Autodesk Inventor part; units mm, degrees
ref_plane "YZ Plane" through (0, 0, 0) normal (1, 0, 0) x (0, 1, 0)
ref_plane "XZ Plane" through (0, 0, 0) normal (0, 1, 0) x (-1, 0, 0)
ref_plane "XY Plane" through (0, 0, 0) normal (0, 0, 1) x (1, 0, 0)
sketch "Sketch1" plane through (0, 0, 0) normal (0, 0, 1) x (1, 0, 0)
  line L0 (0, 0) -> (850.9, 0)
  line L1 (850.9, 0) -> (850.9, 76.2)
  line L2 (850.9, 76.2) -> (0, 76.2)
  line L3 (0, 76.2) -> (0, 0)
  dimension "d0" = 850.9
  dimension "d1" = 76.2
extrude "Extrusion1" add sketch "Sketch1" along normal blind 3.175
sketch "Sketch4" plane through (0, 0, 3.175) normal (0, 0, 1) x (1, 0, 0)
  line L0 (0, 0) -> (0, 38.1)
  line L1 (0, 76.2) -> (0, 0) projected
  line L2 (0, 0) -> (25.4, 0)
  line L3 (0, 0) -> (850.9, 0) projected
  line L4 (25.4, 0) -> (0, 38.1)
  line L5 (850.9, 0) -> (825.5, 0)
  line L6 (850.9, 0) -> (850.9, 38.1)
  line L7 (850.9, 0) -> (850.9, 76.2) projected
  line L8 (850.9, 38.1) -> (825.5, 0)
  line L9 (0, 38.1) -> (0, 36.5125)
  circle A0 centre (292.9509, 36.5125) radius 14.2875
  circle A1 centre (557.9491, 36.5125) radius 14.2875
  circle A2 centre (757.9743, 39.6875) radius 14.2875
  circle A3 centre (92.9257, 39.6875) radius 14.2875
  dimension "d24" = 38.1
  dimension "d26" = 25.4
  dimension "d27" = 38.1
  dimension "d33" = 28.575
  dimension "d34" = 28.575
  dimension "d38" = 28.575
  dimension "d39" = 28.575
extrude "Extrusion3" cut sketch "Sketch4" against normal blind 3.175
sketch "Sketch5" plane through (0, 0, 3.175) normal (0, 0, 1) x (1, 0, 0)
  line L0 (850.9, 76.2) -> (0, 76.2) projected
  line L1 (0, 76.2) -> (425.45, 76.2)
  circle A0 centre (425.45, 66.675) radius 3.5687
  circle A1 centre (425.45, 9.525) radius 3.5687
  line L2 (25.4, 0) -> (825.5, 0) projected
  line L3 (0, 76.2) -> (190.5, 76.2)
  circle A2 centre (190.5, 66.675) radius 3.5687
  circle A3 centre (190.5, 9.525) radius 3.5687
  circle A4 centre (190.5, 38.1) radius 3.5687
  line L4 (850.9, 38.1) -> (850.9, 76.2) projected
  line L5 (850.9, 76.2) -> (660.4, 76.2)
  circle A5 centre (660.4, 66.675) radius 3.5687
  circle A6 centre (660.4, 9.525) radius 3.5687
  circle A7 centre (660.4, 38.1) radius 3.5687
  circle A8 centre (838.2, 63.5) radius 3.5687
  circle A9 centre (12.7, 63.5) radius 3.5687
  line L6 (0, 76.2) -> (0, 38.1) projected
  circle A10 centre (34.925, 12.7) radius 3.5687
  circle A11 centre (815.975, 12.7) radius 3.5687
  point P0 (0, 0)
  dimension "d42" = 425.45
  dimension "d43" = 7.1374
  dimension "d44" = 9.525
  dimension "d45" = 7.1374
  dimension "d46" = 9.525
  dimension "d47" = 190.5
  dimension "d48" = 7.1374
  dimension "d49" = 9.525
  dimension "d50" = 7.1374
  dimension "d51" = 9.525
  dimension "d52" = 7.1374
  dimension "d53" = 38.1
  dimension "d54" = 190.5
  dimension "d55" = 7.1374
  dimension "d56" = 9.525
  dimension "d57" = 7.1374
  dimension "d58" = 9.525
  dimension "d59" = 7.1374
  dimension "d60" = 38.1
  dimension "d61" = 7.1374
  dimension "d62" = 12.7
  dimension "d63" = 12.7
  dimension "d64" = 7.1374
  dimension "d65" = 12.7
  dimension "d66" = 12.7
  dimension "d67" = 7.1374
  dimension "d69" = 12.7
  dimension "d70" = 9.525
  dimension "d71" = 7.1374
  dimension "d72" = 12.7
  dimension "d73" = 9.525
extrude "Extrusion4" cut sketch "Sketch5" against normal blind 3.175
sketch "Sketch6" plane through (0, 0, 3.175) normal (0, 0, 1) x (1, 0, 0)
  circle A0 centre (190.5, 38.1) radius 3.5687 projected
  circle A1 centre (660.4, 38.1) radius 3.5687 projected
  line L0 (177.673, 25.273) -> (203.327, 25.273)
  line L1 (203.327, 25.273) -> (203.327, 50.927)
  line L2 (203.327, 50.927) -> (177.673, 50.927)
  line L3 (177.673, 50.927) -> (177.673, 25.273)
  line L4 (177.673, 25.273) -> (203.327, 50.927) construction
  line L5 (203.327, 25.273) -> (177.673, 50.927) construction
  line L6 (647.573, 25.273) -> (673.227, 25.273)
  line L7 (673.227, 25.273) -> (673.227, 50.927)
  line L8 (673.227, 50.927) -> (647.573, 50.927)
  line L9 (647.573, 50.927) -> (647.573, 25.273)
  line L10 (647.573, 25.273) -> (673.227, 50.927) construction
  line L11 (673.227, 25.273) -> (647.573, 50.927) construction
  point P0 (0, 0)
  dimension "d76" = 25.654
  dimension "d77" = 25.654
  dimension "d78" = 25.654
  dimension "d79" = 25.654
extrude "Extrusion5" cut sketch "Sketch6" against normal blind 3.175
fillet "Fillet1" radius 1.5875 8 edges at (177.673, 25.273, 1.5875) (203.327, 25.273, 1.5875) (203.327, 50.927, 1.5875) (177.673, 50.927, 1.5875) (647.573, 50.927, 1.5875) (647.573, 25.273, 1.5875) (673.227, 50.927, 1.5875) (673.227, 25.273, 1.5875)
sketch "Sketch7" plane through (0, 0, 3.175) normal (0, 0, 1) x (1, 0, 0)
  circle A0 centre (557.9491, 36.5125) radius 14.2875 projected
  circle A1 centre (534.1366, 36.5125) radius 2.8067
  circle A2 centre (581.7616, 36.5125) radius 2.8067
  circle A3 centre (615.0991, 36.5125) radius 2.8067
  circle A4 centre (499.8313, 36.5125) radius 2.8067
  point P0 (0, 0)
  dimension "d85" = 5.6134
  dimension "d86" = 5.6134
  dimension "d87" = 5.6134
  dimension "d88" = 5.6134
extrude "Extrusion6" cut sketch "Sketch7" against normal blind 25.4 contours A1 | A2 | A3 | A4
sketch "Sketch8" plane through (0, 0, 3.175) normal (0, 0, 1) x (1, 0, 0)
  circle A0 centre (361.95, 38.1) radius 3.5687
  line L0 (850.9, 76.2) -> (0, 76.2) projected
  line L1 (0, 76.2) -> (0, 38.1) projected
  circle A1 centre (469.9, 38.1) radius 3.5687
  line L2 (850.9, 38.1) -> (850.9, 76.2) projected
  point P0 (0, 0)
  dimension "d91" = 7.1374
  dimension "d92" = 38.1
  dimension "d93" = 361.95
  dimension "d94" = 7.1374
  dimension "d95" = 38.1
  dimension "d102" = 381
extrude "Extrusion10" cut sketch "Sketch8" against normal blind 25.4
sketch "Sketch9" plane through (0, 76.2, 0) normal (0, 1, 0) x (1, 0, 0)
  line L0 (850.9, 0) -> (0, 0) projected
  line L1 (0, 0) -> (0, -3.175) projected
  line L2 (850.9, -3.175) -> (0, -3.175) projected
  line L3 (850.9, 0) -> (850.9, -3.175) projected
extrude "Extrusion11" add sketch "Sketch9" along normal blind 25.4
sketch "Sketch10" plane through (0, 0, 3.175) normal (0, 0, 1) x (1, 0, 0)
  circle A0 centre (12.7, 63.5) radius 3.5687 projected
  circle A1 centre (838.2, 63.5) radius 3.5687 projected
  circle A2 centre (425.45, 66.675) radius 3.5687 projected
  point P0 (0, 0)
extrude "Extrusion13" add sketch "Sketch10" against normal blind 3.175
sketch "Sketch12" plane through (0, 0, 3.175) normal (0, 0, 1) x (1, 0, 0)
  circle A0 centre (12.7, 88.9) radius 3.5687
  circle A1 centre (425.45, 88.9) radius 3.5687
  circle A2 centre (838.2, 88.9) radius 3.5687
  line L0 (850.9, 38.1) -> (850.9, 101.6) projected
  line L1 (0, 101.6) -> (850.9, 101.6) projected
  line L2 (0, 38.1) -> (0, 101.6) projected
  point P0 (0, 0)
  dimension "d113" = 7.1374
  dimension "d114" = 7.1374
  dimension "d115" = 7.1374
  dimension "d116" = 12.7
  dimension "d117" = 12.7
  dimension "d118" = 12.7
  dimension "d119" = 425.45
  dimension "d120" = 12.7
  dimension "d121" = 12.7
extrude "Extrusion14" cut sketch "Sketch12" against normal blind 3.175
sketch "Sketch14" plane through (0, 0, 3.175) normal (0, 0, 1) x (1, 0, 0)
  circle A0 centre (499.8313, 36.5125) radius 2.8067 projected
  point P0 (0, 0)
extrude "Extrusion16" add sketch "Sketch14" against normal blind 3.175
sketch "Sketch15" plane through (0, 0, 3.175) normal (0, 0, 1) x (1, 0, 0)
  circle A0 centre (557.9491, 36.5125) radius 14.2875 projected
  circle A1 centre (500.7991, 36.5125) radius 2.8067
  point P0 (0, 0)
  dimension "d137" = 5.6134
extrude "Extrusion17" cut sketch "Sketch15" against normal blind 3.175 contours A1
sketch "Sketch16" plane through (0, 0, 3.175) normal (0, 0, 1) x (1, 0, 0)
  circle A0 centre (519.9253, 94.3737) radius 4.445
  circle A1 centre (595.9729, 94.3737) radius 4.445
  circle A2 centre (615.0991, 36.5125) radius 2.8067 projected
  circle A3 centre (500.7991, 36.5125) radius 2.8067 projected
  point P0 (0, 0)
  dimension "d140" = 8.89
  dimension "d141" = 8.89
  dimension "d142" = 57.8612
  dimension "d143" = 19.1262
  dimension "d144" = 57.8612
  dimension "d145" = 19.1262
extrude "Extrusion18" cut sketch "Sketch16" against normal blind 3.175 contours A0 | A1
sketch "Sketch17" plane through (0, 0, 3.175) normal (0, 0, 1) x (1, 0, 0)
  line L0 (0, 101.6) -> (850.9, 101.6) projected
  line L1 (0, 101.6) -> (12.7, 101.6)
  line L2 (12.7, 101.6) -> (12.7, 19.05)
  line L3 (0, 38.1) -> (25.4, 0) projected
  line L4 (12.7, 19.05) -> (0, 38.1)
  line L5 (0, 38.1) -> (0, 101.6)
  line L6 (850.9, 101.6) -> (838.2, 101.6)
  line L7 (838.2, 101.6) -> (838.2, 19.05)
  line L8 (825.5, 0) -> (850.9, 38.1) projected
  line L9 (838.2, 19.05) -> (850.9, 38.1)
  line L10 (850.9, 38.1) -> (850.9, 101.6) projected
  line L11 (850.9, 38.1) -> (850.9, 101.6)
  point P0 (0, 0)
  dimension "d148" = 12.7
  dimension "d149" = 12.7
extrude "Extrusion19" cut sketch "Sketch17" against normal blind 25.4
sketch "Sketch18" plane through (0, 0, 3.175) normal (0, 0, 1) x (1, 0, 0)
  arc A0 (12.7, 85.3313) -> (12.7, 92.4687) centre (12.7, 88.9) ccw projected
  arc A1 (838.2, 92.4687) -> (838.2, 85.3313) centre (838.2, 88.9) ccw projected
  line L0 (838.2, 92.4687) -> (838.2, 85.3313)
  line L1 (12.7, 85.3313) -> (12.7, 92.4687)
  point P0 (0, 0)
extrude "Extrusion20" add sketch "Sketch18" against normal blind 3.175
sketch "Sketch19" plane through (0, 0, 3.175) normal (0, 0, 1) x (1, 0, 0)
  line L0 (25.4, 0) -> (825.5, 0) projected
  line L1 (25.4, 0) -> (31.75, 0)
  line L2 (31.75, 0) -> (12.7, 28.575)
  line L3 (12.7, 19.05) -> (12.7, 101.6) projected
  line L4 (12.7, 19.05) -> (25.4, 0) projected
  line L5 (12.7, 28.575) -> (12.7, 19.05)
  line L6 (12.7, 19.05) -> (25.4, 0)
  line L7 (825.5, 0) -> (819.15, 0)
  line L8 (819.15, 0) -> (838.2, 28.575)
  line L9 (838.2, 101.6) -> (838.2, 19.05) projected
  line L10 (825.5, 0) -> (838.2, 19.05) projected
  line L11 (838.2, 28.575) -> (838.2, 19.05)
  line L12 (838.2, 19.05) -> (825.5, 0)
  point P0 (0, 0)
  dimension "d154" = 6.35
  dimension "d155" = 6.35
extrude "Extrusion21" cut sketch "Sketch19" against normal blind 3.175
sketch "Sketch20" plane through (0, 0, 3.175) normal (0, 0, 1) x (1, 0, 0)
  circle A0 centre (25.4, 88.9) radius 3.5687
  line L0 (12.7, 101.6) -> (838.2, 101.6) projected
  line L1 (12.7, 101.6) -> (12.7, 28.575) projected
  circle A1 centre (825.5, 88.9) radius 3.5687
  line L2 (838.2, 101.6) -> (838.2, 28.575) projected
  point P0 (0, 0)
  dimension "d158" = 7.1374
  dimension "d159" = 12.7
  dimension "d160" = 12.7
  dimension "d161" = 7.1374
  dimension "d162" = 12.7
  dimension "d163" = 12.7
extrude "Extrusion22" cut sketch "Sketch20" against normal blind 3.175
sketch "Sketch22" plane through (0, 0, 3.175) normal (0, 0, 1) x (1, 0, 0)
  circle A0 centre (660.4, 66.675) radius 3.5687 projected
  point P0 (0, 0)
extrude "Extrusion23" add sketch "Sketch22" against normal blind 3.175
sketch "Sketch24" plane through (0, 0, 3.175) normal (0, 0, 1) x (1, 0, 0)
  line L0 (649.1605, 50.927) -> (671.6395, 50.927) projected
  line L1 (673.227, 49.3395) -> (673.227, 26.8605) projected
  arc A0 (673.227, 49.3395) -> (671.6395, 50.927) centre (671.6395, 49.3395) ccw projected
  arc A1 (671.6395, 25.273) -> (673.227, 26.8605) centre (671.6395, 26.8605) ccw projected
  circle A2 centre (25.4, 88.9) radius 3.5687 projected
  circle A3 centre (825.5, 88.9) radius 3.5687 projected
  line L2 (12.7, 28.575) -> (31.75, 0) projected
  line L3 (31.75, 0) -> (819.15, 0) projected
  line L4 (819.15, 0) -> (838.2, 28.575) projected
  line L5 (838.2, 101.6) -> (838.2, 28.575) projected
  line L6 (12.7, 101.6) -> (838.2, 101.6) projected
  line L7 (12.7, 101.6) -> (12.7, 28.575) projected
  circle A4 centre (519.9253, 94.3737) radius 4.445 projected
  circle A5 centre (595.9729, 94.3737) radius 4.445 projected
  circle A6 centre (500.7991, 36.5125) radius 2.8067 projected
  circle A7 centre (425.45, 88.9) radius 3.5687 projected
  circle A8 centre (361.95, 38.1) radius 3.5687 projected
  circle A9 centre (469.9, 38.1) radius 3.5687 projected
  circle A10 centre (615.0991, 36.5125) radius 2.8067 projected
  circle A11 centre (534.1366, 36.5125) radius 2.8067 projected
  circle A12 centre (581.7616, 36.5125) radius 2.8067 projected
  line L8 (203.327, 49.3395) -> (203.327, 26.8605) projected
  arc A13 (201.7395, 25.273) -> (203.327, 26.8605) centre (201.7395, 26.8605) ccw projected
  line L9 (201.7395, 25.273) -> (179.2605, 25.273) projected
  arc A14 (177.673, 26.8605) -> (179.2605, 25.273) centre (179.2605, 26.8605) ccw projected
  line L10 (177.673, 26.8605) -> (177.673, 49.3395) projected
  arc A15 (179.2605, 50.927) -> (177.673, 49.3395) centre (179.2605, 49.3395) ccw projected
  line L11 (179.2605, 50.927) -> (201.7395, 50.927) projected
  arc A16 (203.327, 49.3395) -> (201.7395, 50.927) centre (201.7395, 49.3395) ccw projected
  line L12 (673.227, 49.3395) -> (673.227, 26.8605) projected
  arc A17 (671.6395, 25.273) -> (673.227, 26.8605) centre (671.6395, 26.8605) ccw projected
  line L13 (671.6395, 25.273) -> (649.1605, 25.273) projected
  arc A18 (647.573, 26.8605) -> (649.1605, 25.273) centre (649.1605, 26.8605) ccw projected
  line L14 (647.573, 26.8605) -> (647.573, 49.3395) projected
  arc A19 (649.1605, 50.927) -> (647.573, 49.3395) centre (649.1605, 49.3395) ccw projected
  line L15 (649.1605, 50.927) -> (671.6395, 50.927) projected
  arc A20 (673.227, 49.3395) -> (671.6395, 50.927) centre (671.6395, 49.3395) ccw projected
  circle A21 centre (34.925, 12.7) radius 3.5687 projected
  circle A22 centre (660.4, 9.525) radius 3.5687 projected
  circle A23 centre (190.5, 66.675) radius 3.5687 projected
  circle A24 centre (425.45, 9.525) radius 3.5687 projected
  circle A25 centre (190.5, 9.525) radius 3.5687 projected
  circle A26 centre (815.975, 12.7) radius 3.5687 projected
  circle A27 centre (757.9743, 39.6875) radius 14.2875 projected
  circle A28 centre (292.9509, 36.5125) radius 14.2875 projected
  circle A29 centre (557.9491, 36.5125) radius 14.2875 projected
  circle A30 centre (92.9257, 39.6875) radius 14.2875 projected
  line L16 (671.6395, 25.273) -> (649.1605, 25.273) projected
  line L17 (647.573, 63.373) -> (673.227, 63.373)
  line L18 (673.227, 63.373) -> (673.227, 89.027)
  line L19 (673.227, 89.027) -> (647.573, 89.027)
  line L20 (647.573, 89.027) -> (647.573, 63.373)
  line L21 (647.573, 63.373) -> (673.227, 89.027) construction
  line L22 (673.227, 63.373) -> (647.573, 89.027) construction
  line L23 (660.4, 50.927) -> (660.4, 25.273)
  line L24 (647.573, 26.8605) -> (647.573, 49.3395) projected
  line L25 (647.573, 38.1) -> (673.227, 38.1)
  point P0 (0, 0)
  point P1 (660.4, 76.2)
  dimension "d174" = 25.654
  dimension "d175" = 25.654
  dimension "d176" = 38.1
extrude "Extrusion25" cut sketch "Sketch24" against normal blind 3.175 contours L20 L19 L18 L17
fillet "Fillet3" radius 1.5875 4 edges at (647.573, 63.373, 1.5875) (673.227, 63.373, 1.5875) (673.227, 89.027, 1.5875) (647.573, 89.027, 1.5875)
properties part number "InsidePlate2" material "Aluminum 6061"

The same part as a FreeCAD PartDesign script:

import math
import FreeCAD as App
import Part
import Sketcher

V = App.Vector
Q = App.Units.Quantity


def edges_at(feature, points):
    """Names of the edges that pass closest to the given points."""
    edges = feature.Shape.Edges
    near = lambda p: min(range(len(edges)), key=lambda i: edges[i].distToShape(Part.Vertex(*p))[0])
    return sorted({f"Edge{near(p) + 1}" for p in points})


def add_polygon(sketch, points):
    """Adds a closed chain of lines whose ends are joined by coincident constraints."""
    first, n = sketch.GeometryCount, len(points)
    for a, b in zip(points, points[1:] + points[:1]):
        sketch.addGeometry(Part.LineSegment(App.Vector(*a, 0), App.Vector(*b, 0)), False)
    for i in range(n):
        sketch.addConstraint(Sketcher.Constraint("Coincident", first + i, 2, first + (i + 1) % n, 1))

doc = App.newDocument("Part")
body = doc.addObject("PartDesign::Body", "Body")

# Sketch on XY plane
sketch1 = body.newObject("Sketcher::SketchObject", "Sketch")
sketch1.AttachmentSupport = (doc.getObject("XY_Plane"), [""])
sketch1.MapMode = "FlatFace"
add_polygon(sketch1, [(0, 76), (0, 0), (851, 0), (851, 76)])  # lines 0-3
sketch1.addConstraint([
    Sketcher.Constraint("Vertical", 0),
    Sketcher.Constraint("Horizontal", 1),
    Sketcher.Constraint("Vertical", 2),
    Sketcher.Constraint("Horizontal", 3),
    Sketcher.Constraint("Coincident", 0, 2, -1, 1),
    Sketcher.Constraint("DistanceY", 0, 2, 0, 1, Q("3 in")),
    Sketcher.Constraint("DistanceX", 1, 1, 1, 2, Q("33.5 in")),
])
pad1 = body.newObject("PartDesign::Pad", "Pad")
pad1.Profile = sketch1
pad1.Length = Q("0.125 in")

# Sketch on XY plane
sketch2 = body.newObject("Sketcher::SketchObject", "Sketch001")
sketch2.AttachmentSupport = (doc.getObject("XY_Plane"), [""])
sketch2.MapMode = "FlatFace"
sketch2.AttachmentOffset = App.Placement(V(0, 0, 0.125 * 25.4), App.Rotation())
add_polygon(sketch2, [(851, 38), (826, 0), (851, 0)])  # lines 0-2
add_polygon(sketch2, [(0, 38), (0, 0), (25, 0)])  # lines 3-5
sketch2.addGeometry(Part.Circle(V(293, 37, 0), V(0, 0, 1), 14), False)  # 6
sketch2.addGeometry(Part.Circle(V(558, 37, 0), V(0, 0, 1), 14), False)  # 7
sketch2.addGeometry(Part.Circle(V(758, 40, 0), V(0, 0, 1), 14), False)  # 8
sketch2.addGeometry(Part.Circle(V(93, 40, 0), V(0, 0, 1), 14), False)  # 9
sketch2.addConstraint([
    Sketcher.Constraint("Horizontal", 1),
    Sketcher.Constraint("Vertical", 2),
    Sketcher.Constraint("Vertical", 3),
    Sketcher.Constraint("Horizontal", 4),
    Sketcher.Constraint("Coincident", 3, 2, -1, 1),
    Sketcher.Constraint("Equal", 6, 7),
    Sketcher.Constraint("Equal", 7, 8),
    Sketcher.Constraint("Equal", 8, 9),
    Sketcher.Constraint("PointOnObject", 0, 2, -1),
    Sketcher.Constraint("Horizontal", 6, 3, 7, 3),
    Sketcher.Constraint("Horizontal", 8, 3, 9, 3),
    Sketcher.Constraint("Horizontal", 2, 2, 5, 2),
    Sketcher.Constraint("Equal", 1, 4),
    Sketcher.Constraint("DistanceX", 1, 1, 1, 2, Q("1 in")),
    Sketcher.Constraint("Diameter", 6, Q("1.125 in")),
    Sketcher.Constraint("DistanceY", 2, 1, 2, 2, Q("1.5 in")),
    Sketcher.Constraint("DistanceX", -1, 1, 0, 2, Q("32.5 in")),
    Sketcher.Constraint("DistanceY", -1, 1, 6, 3, Q("1.4375 in")),
    Sketcher.Constraint("DistanceY", -1, 1, 8, 3, Q("1.5625 in")),
    Sketcher.Constraint("DistanceX", 6, 3, 7, 3, Q("10.433 in")),
    Sketcher.Constraint("DistanceX", 7, 3, 8, 3, Q("7.875 in")),
    Sketcher.Constraint("DistanceX", 9, 3, 6, 3, Q("7.875 in")),
    Sketcher.Constraint("DistanceX", -1, 1, 6, 3, Q("11.5335 in")),
])
pocket1 = body.newObject("PartDesign::Pocket", "Pocket")
pocket1.Profile = sketch2
pocket1.Length = Q("0.125 in")

# Sketch on XY plane
sketch3 = body.newObject("Sketcher::SketchObject", "Sketch002")
sketch3.AttachmentSupport = (doc.getObject("XY_Plane"), [""])
sketch3.MapMode = "FlatFace"
sketch3.AttachmentOffset = App.Placement(V(0, 0, 0.125 * 25.4), App.Rotation())
sketch3.addGeometry([
    Part.Circle(V(425.4, 66.7, 0), V(0, 0, 1), 3.6),  # 0
    Part.Circle(V(425.4, 9.5, 0), V(0, 0, 1), 3.6),  # 1
    Part.Circle(V(190.5, 66.7, 0), V(0, 0, 1), 3.6),  # 2
    Part.Circle(V(190.5, 9.5, 0), V(0, 0, 1), 3.6),  # 3
    Part.Circle(V(190.5, 38.1, 0), V(0, 0, 1), 3.6),  # 4
    Part.Circle(V(660.4, 66.7, 0), V(0, 0, 1), 3.6),  # 5
    Part.Circle(V(660.4, 9.5, 0), V(0, 0, 1), 3.6),  # 6
    Part.Circle(V(660.4, 38.1, 0), V(0, 0, 1), 3.6),  # 7
    Part.Circle(V(838.2, 63.5, 0), V(0, 0, 1), 3.6),  # 8
    Part.Circle(V(12.7, 63.5, 0), V(0, 0, 1), 3.6),  # 9
    Part.Circle(V(34.9, 12.7, 0), V(0, 0, 1), 3.6),  # 10
    Part.Circle(V(816, 12.7, 0), V(0, 0, 1), 3.6),  # 11
], False)
sketch3.addConstraint([
    Sketcher.Constraint("Equal", 0, 1),
    Sketcher.Constraint("Equal", 1, 2),
    Sketcher.Constraint("Equal", 2, 3),
    Sketcher.Constraint("Equal", 3, 4),
    Sketcher.Constraint("Equal", 4, 5),
    Sketcher.Constraint("Equal", 5, 6),
    Sketcher.Constraint("Equal", 6, 7),
    Sketcher.Constraint("Equal", 7, 8),
    Sketcher.Constraint("Equal", 8, 9),
    Sketcher.Constraint("Equal", 9, 10),
    Sketcher.Constraint("Equal", 10, 11),
    Sketcher.Constraint("Horizontal", 0, 3, 2, 3),
    Sketcher.Constraint("Horizontal", 1, 3, 3, 3),
    Sketcher.Constraint("Horizontal", 2, 3, 5, 3),
    Sketcher.Constraint("Horizontal", 3, 3, 6, 3),
    Sketcher.Constraint("Horizontal", 4, 3, 7, 3),
    Sketcher.Constraint("Horizontal", 8, 3, 9, 3),
    Sketcher.Constraint("Horizontal", 10, 3, 11, 3),
    Sketcher.Constraint("Vertical", 0, 3, 1, 3),
    Sketcher.Constraint("Vertical", 2, 3, 3, 3),
    Sketcher.Constraint("Vertical", 3, 3, 4, 3),
    Sketcher.Constraint("Vertical", 5, 3, 6, 3),
    Sketcher.Constraint("Vertical", 6, 3, 7, 3),
    Sketcher.Constraint("Diameter", 0, Q("0.281 in")),
    Sketcher.Constraint("DistanceX", -1, 1, 2, 3, Q("7.5 in")),
    Sketcher.Constraint("DistanceY", -1, 1, 4, 3, Q("1.5 in")),
    Sketcher.Constraint("DistanceX", -1, 1, 9, 3, Q("0.5 in")),
    Sketcher.Constraint("DistanceY", -1, 1, 10, 3, Q("0.5 in")),
    Sketcher.Constraint("DistanceX", -1, 1, 0, 3, Q("16.75 in")),
    Sketcher.Constraint("DistanceY", -1, 1, 1, 3, Q("0.375 in")),
    Sketcher.Constraint("DistanceX", -1, 1, 5, 3, Q("26 in")),
    Sketcher.Constraint("DistanceX", -1, 1, 8, 3, Q("33 in")),
    Sketcher.Constraint("DistanceY", 7, 3, 8, 3, Q("1 in")),
    Sketcher.Constraint("DistanceY", 1, 3, 0, 3, Q("2.25 in")),
    Sketcher.Constraint("DistanceX", -1, 1, 10, 3, Q("1.375 in")),
    Sketcher.Constraint("DistanceX", -1, 1, 11, 3, Q("32.125 in")),
])
pocket2 = body.newObject("PartDesign::Pocket", "Pocket001")
pocket2.Profile = sketch3
pocket2.Length = Q("0.125 in")

# Sketch on XY plane
sketch4 = body.newObject("Sketcher::SketchObject", "Sketch003")
sketch4.AttachmentSupport = (doc.getObject("XY_Plane"), [""])
sketch4.MapMode = "FlatFace"
sketch4.AttachmentOffset = App.Placement(V(0, 0, 0.125 * 25.4), App.Rotation())
add_polygon(sketch4, [(177.7, 50.9), (177.7, 25.3), (203.3, 25.3), (203.3, 50.9)])  # lines 0-3
sketch4.addGeometry(Part.Circle(V(190.5, 38.1, 0), V(0, 0, 1), 3.6), False)  # 4
add_polygon(sketch4, [(647.6, 50.9), (647.6, 25.3), (673.2, 25.3), (673.2, 50.9)])  # lines 5-8
sketch4.addGeometry(Part.Circle(V(660.4, 38.1, 0), V(0, 0, 1), 3.6), False)  # 9
sketch4.addConstraint([
    Sketcher.Constraint("Vertical", 0),
    Sketcher.Constraint("Horizontal", 1),
    Sketcher.Constraint("Vertical", 2),
    Sketcher.Constraint("Horizontal", 3),
    Sketcher.Constraint("Vertical", 5),
    Sketcher.Constraint("Horizontal", 6),
    Sketcher.Constraint("Vertical", 7),
    Sketcher.Constraint("Horizontal", 8),
    Sketcher.Constraint("Equal", 4, 9),
    Sketcher.Constraint("Horizontal", 4, 3, 9, 3),
    Sketcher.Constraint("Horizontal", 1, 2, 5, 2),
    Sketcher.Constraint("Horizontal", 3, 2, 7, 2),
    Sketcher.Constraint("Equal", 3, 6),
    Sketcher.Constraint("Equal", 8, 0),
    Sketcher.Constraint("DistanceX", 1, 1, 1, 2, Q("1.01 in")),
    Sketcher.Constraint("Diameter", 4, Q("0.281 in")),
    Sketcher.Constraint("DistanceX", -1, 1, 9, 3, Q("26 in")),
    Sketcher.Constraint("DistanceX", -1, 1, 4, 3, Q("7.5 in")),
    Sketcher.Constraint("DistanceY", -1, 1, 4, 3, Q("1.5 in")),
    Sketcher.Constraint("DistanceX", 0, 2, 5, 2, Q("18.5 in")),
    Sketcher.Constraint("DistanceX", -1, 1, 0, 2, Q("6.995 in")),
    Sketcher.Constraint("DistanceY", -1, 1, 0, 2, Q("0.995 in")),
])
pocket3 = body.newObject("PartDesign::Pocket", "Pocket002")
pocket3.Profile = sketch4
pocket3.Length = Q("0.125 in")
doc.recompute()

fillet = body.newObject("PartDesign::Fillet", "Fillet")
fillet.Base = (pocket3, edges_at(pocket3, [
    (177.673, 25.273, 1.587),
    (203.327, 25.273, 1.587),
    (203.327, 50.927, 1.587),
    (177.673, 50.927, 1.587),
    (647.573, 50.927, 1.587),
    (647.573, 25.273, 1.587),
    (673.227, 50.927, 1.587),
    (673.227, 25.273, 1.587),
]))
fillet.Radius = Q("0.0625 in")

# Sketch on XY plane
sketch5 = body.newObject("Sketcher::SketchObject", "Sketch004")
sketch5.AttachmentSupport = (doc.getObject("XY_Plane"), [""])
sketch5.MapMode = "FlatFace"
sketch5.AttachmentOffset = App.Placement(V(0, 0, 0.125 * 25.4), App.Rotation())
sketch5.addGeometry([
    Part.Circle(V(534.1, 36.5, 0), V(0, 0, 1), 2.8),
    Part.Circle(V(581.8, 36.5, 0), V(0, 0, 1), 2.8),
    Part.Circle(V(615.1, 36.5, 0), V(0, 0, 1), 2.8),
    Part.Circle(V(499.8, 36.5, 0), V(0, 0, 1), 2.8),
], False)
sketch5.addConstraint([
    Sketcher.Constraint("Equal", 0, 1),
    Sketcher.Constraint("Equal", 1, 2),
    Sketcher.Constraint("Equal", 2, 3),
    Sketcher.Constraint("Horizontal", 0, 3, 1, 3),
    Sketcher.Constraint("Horizontal", 1, 3, 2, 3),
    Sketcher.Constraint("Horizontal", 2, 3, 3, 3),
    Sketcher.Constraint("Diameter", 0, Q("0.221 in")),
    Sketcher.Constraint("DistanceX", -1, 1, 0, 3, Q("21.029 in")),
    Sketcher.Constraint("DistanceY", -1, 1, 0, 3, Q("1.4375 in")),
    Sketcher.Constraint("DistanceX", -1, 1, 1, 3, Q("22.904 in")),
    Sketcher.Constraint("DistanceX", 1, 3, 2, 3, Q("1.3125 in")),
    Sketcher.Constraint("DistanceX", -1, 1, 3, 3, Q("19.6784 in")),
])
pocket4 = body.newObject("PartDesign::Pocket", "Pocket003")
pocket4.Profile = sketch5
pocket4.Length = Q("1 in")

# Sketch on XY plane
sketch6 = body.newObject("Sketcher::SketchObject", "Sketch005")
sketch6.AttachmentSupport = (doc.getObject("XY_Plane"), [""])
sketch6.MapMode = "FlatFace"
sketch6.AttachmentOffset = App.Placement(V(0, 0, 0.125 * 25.4), App.Rotation())
sketch6.addGeometry([
    Part.Circle(V(361.9, 38.1, 0), V(0, 0, 1), 3.6),
    Part.Circle(V(469.9, 38.1, 0), V(0, 0, 1), 3.6),
], False)
sketch6.addConstraint([
    Sketcher.Constraint("Equal", 0, 1),
    Sketcher.Constraint("Horizontal", 0, 3, 1, 3),
    Sketcher.Constraint("Diameter", 0, Q("0.281 in")),
    Sketcher.Constraint("DistanceY", -1, 1, 0, 3, Q("1.5 in")),
    Sketcher.Constraint("DistanceX", -1, 1, 0, 3, Q("14.25 in")),
    Sketcher.Constraint("DistanceX", -1, 1, 1, 3, Q("18.5 in")),
])
pocket5 = body.newObject("PartDesign::Pocket", "Pocket004")
pocket5.Profile = sketch6
pocket5.Length = Q("1 in")

# Sketch on XZ plane
sketch7 = body.newObject("Sketcher::SketchObject", "Sketch006")
sketch7.AttachmentSupport = (doc.getObject("XZ_Plane"), [""])
sketch7.MapMode = "FlatFace"
sketch7.AttachmentOffset = App.Placement(V(0, 0, -3 * 25.4), App.Rotation())
add_polygon(sketch7, [(850.9, 3.2), (850.9, 0), (0, 0), (0, 3.2)])  # lines 0-3
sketch7.addConstraint([
    Sketcher.Constraint("Vertical", 0),
    Sketcher.Constraint("Horizontal", 1),
    Sketcher.Constraint("Vertical", 2),
    Sketcher.Constraint("Horizontal", 3),
    Sketcher.Constraint("Coincident", 1, 2, -1, 1),
    Sketcher.Constraint("DistanceX", 1, 2, 1, 1, Q("33.5 in")),
    Sketcher.Constraint("DistanceY", 0, 2, 0, 1, Q("0.125 in")),
])
pad2 = body.newObject("PartDesign::Pad", "Pad001")
pad2.Profile = sketch7
pad2.Length = Q("1 in")
pad2.Reversed = True

# Sketch on XY plane
sketch8 = body.newObject("Sketcher::SketchObject", "Sketch007")
sketch8.AttachmentSupport = (doc.getObject("XY_Plane"), [""])
sketch8.MapMode = "FlatFace"
sketch8.AttachmentOffset = App.Placement(V(0, 0, 0.125 * 25.4), App.Rotation())
sketch8.addGeometry([
    Part.Circle(V(12.7, 63.5, 0), V(0, 0, 1), 3.6),
    Part.Circle(V(838.2, 63.5, 0), V(0, 0, 1), 3.6),
    Part.Circle(V(425.4, 66.7, 0), V(0, 0, 1), 3.6),
], False)
sketch8.addConstraint([
    Sketcher.Constraint("Equal", 0, 1),
    Sketcher.Constraint("Equal", 1, 2),
    Sketcher.Constraint("Horizontal", 0, 3, 1, 3),
    Sketcher.Constraint("Diameter", 0, Q("0.281 in")),
    Sketcher.Constraint("DistanceX", -1, 1, 1, 3, Q("33 in")),
    Sketcher.Constraint("DistanceX", -1, 1, 0, 3, Q("0.5 in")),
    Sketcher.Constraint("DistanceY", -1, 1, 0, 3, Q("2.5 in")),
    Sketcher.Constraint("DistanceX", -1, 1, 2, 3, Q("16.75 in")),
    Sketcher.Constraint("DistanceY", -1, 1, 2, 3, Q("2.625 in")),
])
pad3 = body.newObject("PartDesign::Pad", "Pad002")
pad3.Profile = sketch8
pad3.Length = Q("0.125 in")
pad3.Reversed = True

# Sketch on XY plane
sketch9 = body.newObject("Sketcher::SketchObject", "Sketch008")
sketch9.AttachmentSupport = (doc.getObject("XY_Plane"), [""])
sketch9.MapMode = "FlatFace"
sketch9.AttachmentOffset = App.Placement(V(0, 0, 0.125 * 25.4), App.Rotation())
sketch9.addGeometry([
    Part.Circle(V(12.7, 88.9, 0), V(0, 0, 1), 3.6),
    Part.Circle(V(425.4, 88.9, 0), V(0, 0, 1), 3.6),
    Part.Circle(V(838.2, 88.9, 0), V(0, 0, 1), 3.6),
], False)
sketch9.addConstraint([
    Sketcher.Constraint("Equal", 0, 1),
    Sketcher.Constraint("Equal", 1, 2),
    Sketcher.Constraint("Horizontal", 0, 3, 1, 3),
    Sketcher.Constraint("Horizontal", 1, 3, 2, 3),
    Sketcher.Constraint("Diameter", 0, Q("0.281 in")),
    Sketcher.Constraint("DistanceX", -1, 1, 0, 3, Q("0.5 in")),
    Sketcher.Constraint("DistanceX", -1, 1, 1, 3, Q("16.75 in")),
    Sketcher.Constraint("DistanceX", -1, 1, 2, 3, Q("33 in")),
    Sketcher.Constraint("DistanceY", -1, 1, 0, 3, Q("3.5 in")),
])
pocket6 = body.newObject("PartDesign::Pocket", "Pocket005")
pocket6.Profile = sketch9
pocket6.Length = Q("0.125 in")

# Sketch on XY plane
sketch10 = body.newObject("Sketcher::SketchObject", "Sketch009")
sketch10.AttachmentSupport = (doc.getObject("XY_Plane"), [""])
sketch10.MapMode = "FlatFace"
sketch10.AttachmentOffset = App.Placement(V(0, 0, 0.125 * 25.4), App.Rotation())
sketch10.addGeometry(Part.Circle(V(499.8, 36.5, 0), V(0, 0, 1), 2.8), False)
sketch10.addConstraint([
    Sketcher.Constraint("Diameter", 0, Q("0.221 in")),
    Sketcher.Constraint("DistanceY", -1, 1, 0, 3, Q("1.4375 in")),
    Sketcher.Constraint("DistanceX", -1, 1, 0, 3, Q("19.6784 in")),
])
pad4 = body.newObject("PartDesign::Pad", "Pad003")
pad4.Profile = sketch10
pad4.Length = Q("0.125 in")
pad4.Reversed = True

# Sketch on XY plane
sketch11 = body.newObject("Sketcher::SketchObject", "Sketch010")
sketch11.AttachmentSupport = (doc.getObject("XY_Plane"), [""])
sketch11.MapMode = "FlatFace"
sketch11.AttachmentOffset = App.Placement(V(0, 0, 0.125 * 25.4), App.Rotation())
sketch11.addGeometry(Part.Circle(V(500.8, 36.5, 0), V(0, 0, 1), 2.8), False)
sketch11.addConstraint([
    Sketcher.Constraint("Diameter", 0, Q("0.221 in")),
    Sketcher.Constraint("DistanceY", -1, 1, 0, 3, Q("1.4375 in")),
    Sketcher.Constraint("DistanceX", -1, 1, 0, 3, Q("19.7165 in")),
])
pocket7 = body.newObject("PartDesign::Pocket", "Pocket006")
pocket7.Profile = sketch11
pocket7.Length = Q("0.125 in")

# Sketch on XY plane
sketch12 = body.newObject("Sketcher::SketchObject", "Sketch011")
sketch12.AttachmentSupport = (doc.getObject("XY_Plane"), [""])
sketch12.MapMode = "FlatFace"
sketch12.AttachmentOffset = App.Placement(V(0, 0, 0.125 * 25.4), App.Rotation())
sketch12.addGeometry([
    Part.Circle(V(519.9, 94.4, 0), V(0, 0, 1), 4.4),
    Part.Circle(V(596, 94.4, 0), V(0, 0, 1), 4.4),
], False)
sketch12.addConstraint([
    Sketcher.Constraint("Equal", 0, 1),
    Sketcher.Constraint("Horizontal", 0, 3, 1, 3),
    Sketcher.Constraint("Diameter", 0, Q("0.35 in")),
    Sketcher.Constraint("DistanceX", 0, 3, 1, 3, Q("2.994 in")),
    Sketcher.Constraint("DistanceX", -1, 1, 0, 3, Q("20.4695 in")),
    Sketcher.Constraint("DistanceY", -1, 1, 0, 3, Q("3.7155 in")),
])
pocket8 = body.newObject("PartDesign::Pocket", "Pocket007")
pocket8.Profile = sketch12
pocket8.Length = Q("0.125 in")

# Sketch on XY plane
sketch13 = body.newObject("Sketcher::SketchObject", "Sketch012")
sketch13.AttachmentSupport = (doc.getObject("XY_Plane"), [""])
sketch13.MapMode = "FlatFace"
sketch13.AttachmentOffset = App.Placement(V(0, 0, 0.125 * 25.4), App.Rotation())
add_polygon(sketch13, [(851, 102), (838, 102), (838, 19), (851, 38)])  # lines 0-3
add_polygon(sketch13, [(13, 102), (0, 102), (0, 38), (13, 19)])  # lines 4-7
sketch13.addConstraint([
    Sketcher.Constraint("Horizontal", 0),
    Sketcher.Constraint("Vertical", 1),
    Sketcher.Constraint("Vertical", 3),
    Sketcher.Constraint("Horizontal", 4),
    Sketcher.Constraint("Vertical", 5),
    Sketcher.Constraint("Vertical", 7),
    Sketcher.Constraint("PointOnObject", 4, 2, -2),
    Sketcher.Constraint("Horizontal", 3, 2, 4, 2),
    Sketcher.Constraint("Horizontal", 2, 2, 5, 2),
    Sketcher.Constraint("Horizontal", 1, 2, 6, 2),
    Sketcher.Constraint("Equal", 0, 4),
    Sketcher.Constraint("DistanceX", 0, 2, 0, 1, Q("0.5 in")),
    Sketcher.Constraint("DistanceY", 3, 1, 3, 2, Q("2.5 in")),
    Sketcher.Constraint("DistanceX", -1, 1, 0, 2, Q("33 in")),
    Sketcher.Constraint("DistanceY", -1, 1, 0, 2, Q("4 in")),
    Sketcher.Constraint("DistanceY", 1, 2, 1, 1, Q("3.25 in")),
])
pocket9 = body.newObject("PartDesign::Pocket", "Pocket008")
pocket9.Profile = sketch13
pocket9.Length = Q("1 in")

# Sketch on XY plane
sketch14 = body.newObject("Sketcher::SketchObject", "Sketch013")
sketch14.AttachmentSupport = (doc.getObject("XY_Plane"), [""])
sketch14.MapMode = "FlatFace"
sketch14.AttachmentOffset = App.Placement(V(0, 0, 0.125 * 25.4), App.Rotation())
sketch14.addGeometry([
    Part.LineSegment(V(12.7, 92.5, 0), V(12.7, 85.3, 0)),
    Part.ArcOfCircle(Part.Circle(V(12.7, 88.9, 0), V(0, 0, 1), 3.6), math.radians(-90), math.radians(90)),
    Part.LineSegment(V(838.2, 85.3, 0), V(838.2, 92.5, 0)),
    Part.ArcOfCircle(Part.Circle(V(838.2, 88.9, 0), V(0, 0, 1), 3.6), math.radians(90), math.radians(270)),
], False)
sketch14.addConstraint([
    Sketcher.Constraint("Coincident", 0, 1, 1, 2),
    Sketcher.Constraint("Coincident", 1, 1, 0, 2),
    Sketcher.Constraint("Coincident", 2, 1, 3, 2),
    Sketcher.Constraint("Coincident", 3, 1, 2, 2),
    Sketcher.Constraint("Vertical", 0),
    Sketcher.Constraint("Vertical", 2),
    Sketcher.Constraint("Equal", 1, 3),
    Sketcher.Constraint("Horizontal", 1, 3, 3, 3),
    Sketcher.Constraint("Vertical", 1, 3, 0, 1),
    Sketcher.Constraint("Vertical", 3, 3, 2, 1),
    Sketcher.Constraint("DistanceX", -1, 1, 3, 3, Q("33 in")),
    Sketcher.Constraint("DistanceX", -1, 1, 1, 3, Q("0.5 in")),
    Sketcher.Constraint("DistanceY", -1, 1, 1, 3, Q("3.5 in")),
    Sketcher.Constraint("Radius", 1, Q("0.1405 in")),
])
pad5 = body.newObject("PartDesign::Pad", "Pad004")
pad5.Profile = sketch14
pad5.Length = Q("0.125 in")
pad5.Reversed = True

# Sketch on XY plane
sketch15 = body.newObject("Sketcher::SketchObject", "Sketch014")
sketch15.AttachmentSupport = (doc.getObject("XY_Plane"), [""])
sketch15.MapMode = "FlatFace"
sketch15.AttachmentOffset = App.Placement(V(0, 0, 0.125 * 25.4), App.Rotation())
add_polygon(sketch15, [(13, 19), (25, 0), (32, 0), (13, 29)])  # lines 0-3
add_polygon(sketch15, [(838, 29), (819, 0), (826, 0), (838, 19)])  # lines 4-7
sketch15.addConstraint([
    Sketcher.Constraint("Horizontal", 1),
    Sketcher.Constraint("Vertical", 3),
    Sketcher.Constraint("Horizontal", 5),
    Sketcher.Constraint("Vertical", 7),
    Sketcher.Constraint("PointOnObject", 0, 2, -1),
    Sketcher.Constraint("PointOnObject", 4, 2, -1),
    Sketcher.Constraint("Parallel", 0, 2),
    Sketcher.Constraint("Parallel", 4, 6),
    Sketcher.Constraint("Horizontal", 3, 2, 6, 2),
    Sketcher.Constraint("Horizontal", 2, 2, 7, 2),
    Sketcher.Constraint("Equal", 1, 5),
    Sketcher.Constraint("DistanceX", 1, 1, 1, 2, Q("0.25 in")),
    Sketcher.Constraint("DistanceX", -1, 1, 0, 2, Q("1 in")),
    Sketcher.Constraint("DistanceX", -1, 1, 6, 2, Q("33 in")),
    Sketcher.Constraint("DistanceX", 1, 2, 4, 2, Q("31 in")),
    Sketcher.Constraint("DistanceY", 3, 2, 3, 1, Q("0.375 in")),
])
pocket10 = body.newObject("PartDesign::Pocket", "Pocket009")
pocket10.Profile = sketch15
pocket10.Length = Q("0.125 in")

# Sketch on XY plane
sketch16 = body.newObject("Sketcher::SketchObject", "Sketch015")
sketch16.AttachmentSupport = (doc.getObject("XY_Plane"), [""])
sketch16.MapMode = "FlatFace"
sketch16.AttachmentOffset = App.Placement(V(0, 0, 0.125 * 25.4), App.Rotation())
sketch16.addGeometry([
    Part.Circle(V(25.4, 88.9, 0), V(0, 0, 1), 3.6),
    Part.Circle(V(825.5, 88.9, 0), V(0, 0, 1), 3.6),
], False)
sketch16.addConstraint([
    Sketcher.Constraint("Equal", 0, 1),
    Sketcher.Constraint("Horizontal", 0, 3, 1, 3),
    Sketcher.Constraint("Diameter", 0, Q("0.281 in")),
    Sketcher.Constraint("DistanceX", -1, 1, 0, 3, Q("1 in")),
    Sketcher.Constraint("DistanceY", -1, 1, 0, 3, Q("3.5 in")),
    Sketcher.Constraint("DistanceX", -1, 1, 1, 3, Q("32.5 in")),
])
pocket11 = body.newObject("PartDesign::Pocket", "Pocket010")
pocket11.Profile = sketch16
pocket11.Length = Q("0.125 in")

# Sketch on XY plane
sketch17 = body.newObject("Sketcher::SketchObject", "Sketch016")
sketch17.AttachmentSupport = (doc.getObject("XY_Plane"), [""])
sketch17.MapMode = "FlatFace"
sketch17.AttachmentOffset = App.Placement(V(0, 0, 0.125 * 25.4), App.Rotation())
sketch17.addGeometry(Part.Circle(V(660.4, 66.7, 0), V(0, 0, 1), 3.6), False)
sketch17.addConstraint([
    Sketcher.Constraint("Diameter", 0, Q("0.281 in")),
    Sketcher.Constraint("DistanceX", -1, 1, 0, 3, Q("26 in")),
    Sketcher.Constraint("DistanceY", -1, 1, 0, 3, Q("2.625 in")),
])
pad6 = body.newObject("PartDesign::Pad", "Pad005")
pad6.Profile = sketch17
pad6.Length = Q("0.125 in")
pad6.Reversed = True

# Sketch on XY plane
sketch18 = body.newObject("Sketcher::SketchObject", "Sketch017")
sketch18.AttachmentSupport = (doc.getObject("XY_Plane"), [""])
sketch18.MapMode = "FlatFace"
sketch18.AttachmentOffset = App.Placement(V(0, 0, 0.125 * 25.4), App.Rotation())
add_polygon(sketch18, [(648, 89), (648, 63), (673, 63), (673, 89)])  # lines 0-3
sketch18.addConstraint([
    Sketcher.Constraint("Vertical", 0),
    Sketcher.Constraint("Horizontal", 1),
    Sketcher.Constraint("Vertical", 2),
    Sketcher.Constraint("Horizontal", 3),
    Sketcher.Constraint("Equal", 3, 0),
    Sketcher.Constraint("DistanceX", 1, 1, 1, 2, Q("1.01 in")),
    Sketcher.Constraint("DistanceX", -1, 1, 0, 2, Q("25.495 in")),
    Sketcher.Constraint("DistanceY", -1, 1, 0, 2, Q("2.495 in")),
])
pocket12 = body.newObject("PartDesign::Pocket", "Pocket011")
pocket12.Profile = sketch18
pocket12.Length = Q("0.125 in")
doc.recompute()

fillet2 = body.newObject("PartDesign::Fillet", "Fillet001")
fillet2.Base = (pocket12, edges_at(pocket12, [
    (647.573, 63.373, 1.587),
    (673.227, 63.373, 1.587),
    (673.227, 89.027, 1.587),
    (647.573, 89.027, 1.587),
]))
fillet2.Radius = Q("0.0625 in")

doc.recompute()
